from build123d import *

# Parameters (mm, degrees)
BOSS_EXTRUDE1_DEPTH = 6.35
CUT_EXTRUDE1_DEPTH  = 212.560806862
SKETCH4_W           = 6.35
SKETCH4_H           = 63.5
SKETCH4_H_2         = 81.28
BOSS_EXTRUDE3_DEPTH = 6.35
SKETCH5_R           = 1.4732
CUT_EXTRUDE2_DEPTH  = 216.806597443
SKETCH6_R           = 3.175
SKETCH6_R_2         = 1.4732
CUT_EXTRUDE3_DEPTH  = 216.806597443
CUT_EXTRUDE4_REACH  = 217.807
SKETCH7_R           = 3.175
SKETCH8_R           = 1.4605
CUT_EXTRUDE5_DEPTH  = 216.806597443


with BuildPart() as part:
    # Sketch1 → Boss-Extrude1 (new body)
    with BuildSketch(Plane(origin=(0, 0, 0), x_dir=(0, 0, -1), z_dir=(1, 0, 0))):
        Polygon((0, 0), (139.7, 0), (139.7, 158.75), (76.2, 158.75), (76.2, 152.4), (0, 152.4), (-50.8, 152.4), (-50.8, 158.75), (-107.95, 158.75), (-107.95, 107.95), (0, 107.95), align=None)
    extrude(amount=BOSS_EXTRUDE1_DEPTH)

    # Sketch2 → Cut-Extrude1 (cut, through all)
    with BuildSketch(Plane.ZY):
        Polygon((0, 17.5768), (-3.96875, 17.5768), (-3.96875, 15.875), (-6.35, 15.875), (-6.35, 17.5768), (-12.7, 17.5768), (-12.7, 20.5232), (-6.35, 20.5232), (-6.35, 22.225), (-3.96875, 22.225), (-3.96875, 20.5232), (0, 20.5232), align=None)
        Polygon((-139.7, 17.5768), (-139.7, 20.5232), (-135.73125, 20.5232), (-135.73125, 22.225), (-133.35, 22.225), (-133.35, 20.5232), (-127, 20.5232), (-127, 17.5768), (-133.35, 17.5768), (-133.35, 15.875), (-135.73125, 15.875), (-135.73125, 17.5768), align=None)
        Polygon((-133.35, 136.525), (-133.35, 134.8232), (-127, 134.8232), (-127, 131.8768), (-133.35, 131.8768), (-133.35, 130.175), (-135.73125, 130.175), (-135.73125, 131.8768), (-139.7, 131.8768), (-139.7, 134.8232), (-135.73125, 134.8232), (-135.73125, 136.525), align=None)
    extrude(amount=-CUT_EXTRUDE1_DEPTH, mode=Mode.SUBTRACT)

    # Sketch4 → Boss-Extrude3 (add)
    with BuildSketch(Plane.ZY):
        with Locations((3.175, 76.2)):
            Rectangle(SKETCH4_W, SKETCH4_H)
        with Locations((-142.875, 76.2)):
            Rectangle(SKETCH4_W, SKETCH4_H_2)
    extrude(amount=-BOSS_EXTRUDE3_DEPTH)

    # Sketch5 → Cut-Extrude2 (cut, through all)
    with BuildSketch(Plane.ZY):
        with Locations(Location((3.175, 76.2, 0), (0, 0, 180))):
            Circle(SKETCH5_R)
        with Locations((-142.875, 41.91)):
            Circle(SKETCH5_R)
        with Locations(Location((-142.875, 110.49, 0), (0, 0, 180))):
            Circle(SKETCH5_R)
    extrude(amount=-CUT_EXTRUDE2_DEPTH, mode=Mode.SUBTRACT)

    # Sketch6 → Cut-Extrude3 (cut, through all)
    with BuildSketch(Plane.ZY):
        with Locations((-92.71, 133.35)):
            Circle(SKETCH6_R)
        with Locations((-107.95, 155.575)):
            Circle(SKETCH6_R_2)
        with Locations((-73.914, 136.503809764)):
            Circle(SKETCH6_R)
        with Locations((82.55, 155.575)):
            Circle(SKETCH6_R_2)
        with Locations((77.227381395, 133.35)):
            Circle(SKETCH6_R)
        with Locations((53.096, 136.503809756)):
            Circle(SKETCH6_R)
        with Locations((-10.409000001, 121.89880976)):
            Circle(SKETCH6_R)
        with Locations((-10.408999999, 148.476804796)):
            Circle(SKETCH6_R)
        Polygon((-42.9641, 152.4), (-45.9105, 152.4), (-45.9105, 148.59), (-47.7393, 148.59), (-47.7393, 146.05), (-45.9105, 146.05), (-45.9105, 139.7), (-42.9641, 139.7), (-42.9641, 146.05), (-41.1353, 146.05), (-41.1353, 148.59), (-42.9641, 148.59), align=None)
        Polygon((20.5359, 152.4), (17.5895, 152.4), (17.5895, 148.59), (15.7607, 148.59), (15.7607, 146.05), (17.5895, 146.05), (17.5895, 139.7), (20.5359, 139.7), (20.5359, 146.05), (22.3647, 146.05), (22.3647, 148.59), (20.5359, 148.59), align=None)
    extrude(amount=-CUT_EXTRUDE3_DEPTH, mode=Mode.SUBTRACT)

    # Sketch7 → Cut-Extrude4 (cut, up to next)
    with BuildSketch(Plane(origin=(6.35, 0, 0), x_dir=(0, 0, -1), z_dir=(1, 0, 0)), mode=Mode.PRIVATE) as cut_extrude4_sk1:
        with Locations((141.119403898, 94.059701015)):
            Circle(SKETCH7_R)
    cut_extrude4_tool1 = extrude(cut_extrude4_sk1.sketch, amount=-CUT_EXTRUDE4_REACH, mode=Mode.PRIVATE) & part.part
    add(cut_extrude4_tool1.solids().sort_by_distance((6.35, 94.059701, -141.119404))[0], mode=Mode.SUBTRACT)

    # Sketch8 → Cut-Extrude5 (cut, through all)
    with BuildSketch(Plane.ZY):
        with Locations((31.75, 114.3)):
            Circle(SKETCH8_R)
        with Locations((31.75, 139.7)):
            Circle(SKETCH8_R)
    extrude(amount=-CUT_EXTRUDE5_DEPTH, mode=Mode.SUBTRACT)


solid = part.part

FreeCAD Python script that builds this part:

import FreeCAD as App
import Part
import Sketcher

V = App.Vector
Q = App.Units.Quantity

doc = App.newDocument("Part")
body = doc.addObject("PartDesign::Body", "Body")

sketch1 = body.newObject("Sketcher::SketchObject", "Sketch")
sketch1.AttachmentSupport = (doc.getObject("YZ_Plane"), [""])
sketch1.MapMode = "FlatFace"
sketch1.addGeometry([
    Part.LineSegment(V(0, 0, 0), V(0, -140, 0)),
    Part.LineSegment(V(0, -140, 0), V(159, -140, 0)),
    Part.LineSegment(V(159, -140, 0), V(159, -76, 0)),
    Part.LineSegment(V(159, -76, 0), V(152, -76, 0)),
    Part.LineSegment(V(152, -76, 0), V(152, 51, 0)),
    Part.LineSegment(V(152, 51, 0), V(159, 51, 0)),
    Part.LineSegment(V(159, 51, 0), V(159, 108, 0)),
    Part.LineSegment(V(159, 108, 0), V(108, 108, 0)),
    Part.LineSegment(V(108, 108, 0), V(108, 0, 0)),
    Part.LineSegment(V(108, 0, 0), V(0, 0, 0)),
], False)
sketch1.addConstraint([
    Sketcher.Constraint("Coincident", 0, 2, 1, 1),
    Sketcher.Constraint("Coincident", 1, 2, 2, 1),
    Sketcher.Constraint("Coincident", 2, 2, 3, 1),
    Sketcher.Constraint("Coincident", 3, 2, 4, 1),
    Sketcher.Constraint("Coincident", 4, 2, 5, 1),
    Sketcher.Constraint("Coincident", 5, 2, 6, 1),
    Sketcher.Constraint("Coincident", 6, 2, 7, 1),
    Sketcher.Constraint("Coincident", 7, 2, 8, 1),
    Sketcher.Constraint("Coincident", 8, 2, 9, 1),
    Sketcher.Constraint("Coincident", 9, 2, 0, 1),
    Sketcher.Constraint("Vertical", 0),
    Sketcher.Constraint("Horizontal", 1),
    Sketcher.Constraint("Vertical", 2),
    Sketcher.Constraint("Horizontal", 3),
    Sketcher.Constraint("Vertical", 4),
    Sketcher.Constraint("Horizontal", 5),
    Sketcher.Constraint("Vertical", 6),
    Sketcher.Constraint("Horizontal", 7),
    Sketcher.Constraint("Vertical", 8),
    Sketcher.Constraint("Horizontal", 9),
    Sketcher.Constraint("Coincident", 9, 2, -1, 1),
    Sketcher.Constraint("Vertical", 2, 2, 5, 2),
    Sketcher.Constraint("Equal", 9, 8),
    Sketcher.Constraint("DistanceX", 7, 2, 7, 1, Q("2 in")),
    Sketcher.Constraint("DistanceY", 4, 1, 4, 2, Q("5 in")),
    Sketcher.Constraint("DistanceY", 0, 2, 0, 1, Q("5.5 in")),
    Sketcher.Constraint("DistanceY", 2, 1, 2, 2, Q("2.5 in")),
    Sketcher.Constraint("DistanceX", -1, 1, 3, 2, Q("6 in")),
    Sketcher.Constraint("DistanceX", 1, 1, 1, 2, Q("6.25 in")),
])
pad1 = body.newObject("PartDesign::Pad", "Pad")
pad1.Profile = sketch1
pad1.Length = Q("0.25 in")

sketch2 = body.newObject("Sketcher::SketchObject", "Sketch001")
sketch2.AttachmentSupport = (doc.getObject("YZ_Plane"), [""])
sketch2.MapMode = "FlatFace"
sketch2.addGeometry([
    Part.LineSegment(V(17.6, -4, 0), V(17.6, 0, 0)),
    Part.LineSegment(V(17.6, 0, 0), V(20.5, 0, 0)),
    Part.LineSegment(V(20.5, 0, 0), V(20.5, -4, 0)),
    Part.LineSegment(V(20.5, -4, 0), V(22.2, -4, 0)),
    Part.LineSegment(V(22.2, -4, 0), V(22.2, -6.3, 0)),
    Part.LineSegment(V(22.2, -6.3, 0), V(20.5, -6.3, 0)),
    Part.LineSegment(V(20.5, -6.3, 0), V(20.5, -12.7, 0)),
    Part.LineSegment(V(20.5, -12.7, 0), V(17.6, -12.7, 0)),
    Part.LineSegment(V(17.6, -12.7, 0), V(17.6, -6.3, 0)),
    Part.LineSegment(V(17.6, -6.3, 0), V(15.9, -6.3, 0)),
    Part.LineSegment(V(15.9, -6.3, 0), V(15.9, -4, 0)),
    Part.LineSegment(V(15.9, -4, 0), V(17.6, -4, 0)),
    Part.LineSegment(V(20.5, -139.7, 0), V(17.6, -139.7, 0)),
    Part.LineSegment(V(17.6, -139.7, 0), V(17.6, -135.7, 0)),
    Part.LineSegment(V(17.6, -135.7, 0), V(15.9, -135.7, 0)),
    Part.LineSegment(V(15.9, -135.7, 0), V(15.9, -133.3, 0)),
    Part.LineSegment(V(15.9, -133.3, 0), V(17.6, -133.3, 0)),
    Part.LineSegment(V(17.6, -133.3, 0), V(17.6, -127, 0)),
    Part.LineSegment(V(17.6, -127, 0), V(20.5, -127, 0)),
    Part.LineSegment(V(20.5, -127, 0), V(20.5, -133.3, 0)),
    Part.LineSegment(V(20.5, -133.3, 0), V(22.2, -133.3, 0)),
    Part.LineSegment(V(22.2, -133.3, 0), V(22.2, -135.7, 0)),
    Part.LineSegment(V(22.2, -135.7, 0), V(20.5, -135.7, 0)),
    Part.LineSegment(V(20.5, -135.7, 0), V(20.5, -139.7, 0)),
    Part.LineSegment(V(134.8, -133.3, 0), V(136.5, -133.3, 0)),
    Part.LineSegment(V(136.5, -133.3, 0), V(136.5, -135.7, 0)),
    Part.LineSegment(V(136.5, -135.7, 0), V(134.8, -135.7, 0)),
    Part.LineSegment(V(134.8, -135.7, 0), V(134.8, -139.7, 0)),
    Part.LineSegment(V(134.8, -139.7, 0), V(131.9, -139.7, 0)),
    Part.LineSegment(V(131.9, -139.7, 0), V(131.9, -135.7, 0)),
    Part.LineSegment(V(131.9, -135.7, 0), V(130.2, -135.7, 0)),
    Part.LineSegment(V(130.2, -135.7, 0), V(130.2, -133.3, 0)),
    Part.LineSegment(V(130.2, -133.3, 0), V(131.9, -133.3, 0)),
    Part.LineSegment(V(131.9, -133.3, 0), V(131.9, -127, 0)),
    Part.LineSegment(V(131.9, -127, 0), V(134.8, -127, 0)),
    Part.LineSegment(V(134.8, -127, 0), V(134.8, -133.3, 0)),
], False)
sketch2.addConstraint([
    Sketcher.Constraint("Coincident", 0, 2, 1, 1),
    Sketcher.Constraint("Coincident", 1, 2, 2, 1),
    Sketcher.Constraint("Coincident", 2, 2, 3, 1),
    Sketcher.Constraint("Coincident", 3, 2, 4, 1),
    Sketcher.Constraint("Coincident", 4, 2, 5, 1),
    Sketcher.Constraint("Coincident", 5, 2, 6, 1),
    Sketcher.Constraint("Coincident", 6, 2, 7, 1),
    Sketcher.Constraint("Coincident", 7, 2, 8, 1),
    Sketcher.Constraint("Coincident", 8, 2, 9, 1),
    Sketcher.Constraint("Coincident", 9, 2, 10, 1),
    Sketcher.Constraint("Coincident", 10, 2, 11, 1),
    Sketcher.Constraint("Coincident", 11, 2, 0, 1),
    Sketcher.Constraint("Coincident", 12, 2, 13, 1),
    Sketcher.Constraint("Coincident", 13, 2, 14, 1),
    Sketcher.Constraint("Coincident", 14, 2, 15, 1),
    Sketcher.Constraint("Coincident", 15, 2, 16, 1),
    Sketcher.Constraint("Coincident", 16, 2, 17, 1),
    Sketcher.Constraint("Coincident", 17, 2, 18, 1),
    Sketcher.Constraint("Coincident", 18, 2, 19, 1),
    Sketcher.Constraint("Coincident", 19, 2, 20, 1),
    Sketcher.Constraint("Coincident", 20, 2, 21, 1),
    Sketcher.Constraint("Coincident", 21, 2, 22, 1),
    Sketcher.Constraint("Coincident", 22, 2, 23, 1),
    Sketcher.Constraint("Coincident", 23, 2, 12, 1),
    Sketcher.Constraint("Coincident", 24, 2, 25, 1),
    Sketcher.Constraint("Coincident", 25, 2, 26, 1),
    Sketcher.Constraint("Coincident", 26, 2, 27, 1),
    Sketcher.Constraint("Coincident", 27, 2, 28, 1),
    Sketcher.Constraint("Coincident", 28, 2, 29, 1),
    Sketcher.Constraint("Coincident", 29, 2, 30, 1),
    Sketcher.Constraint("Coincident", 30, 2, 31, 1),
    Sketcher.Constraint("Coincident", 31, 2, 32, 1),
    Sketcher.Constraint("Coincident", 32, 2, 33, 1),
    Sketcher.Constraint("Coincident", 33, 2, 34, 1),
    Sketcher.Constraint("Coincident", 34, 2, 35, 1),
    Sketcher.Constraint("Coincident", 35, 2, 24, 1),
    Sketcher.Constraint("Vertical", 0),
    Sketcher.Constraint("Horizontal", 1),
    Sketcher.Constraint("Vertical", 2),
    Sketcher.Constraint("Horizontal", 3),
    Sketcher.Constraint("Vertical", 4),
    Sketcher.Constraint("Horizontal", 5),
    Sketcher.Constraint("Vertical", 6),
    Sketcher.Constraint("Horizontal", 7),
    Sketcher.Constraint("Vertical", 8),
    Sketcher.Constraint("Horizontal", 9),
    Sketcher.Constraint("Vertical", 10),
    Sketcher.Constraint("Horizontal", 11),
    Sketcher.Constraint("Horizontal", 12),
    Sketcher.Constraint("Vertical", 13),
    Sketcher.Constraint("Horizontal", 14),
    Sketcher.Constraint("Vertical", 15),
    Sketcher.Constraint("Horizontal", 16),
    Sketcher.Constraint("Vertical", 17),
    Sketcher.Constraint("Horizontal", 18),
    Sketcher.Constraint("Vertical", 19),
    Sketcher.Constraint("Horizontal", 20),
    Sketcher.Constraint("Vertical", 21),
    Sketcher.Constraint("Horizontal", 22),
    Sketcher.Constraint("Vertical", 23),
    Sketcher.Constraint("Horizontal", 24),
    Sketcher.Constraint("Vertical", 25),
    Sketcher.Constraint("Horizontal", 26),
    Sketcher.Constraint("Vertical", 27),
    Sketcher.Constraint("Horizontal", 28),
    Sketcher.Constraint("Vertical", 29),
    Sketcher.Constraint("Horizontal", 30),
    Sketcher.Constraint("Vertical", 31),
    Sketcher.Constraint("Horizontal", 32),
    Sketcher.Constraint("Vertical", 33),
    Sketcher.Constraint("Horizontal", 34),
    Sketcher.Constraint("Vertical", 35),
    Sketcher.Constraint("PointOnObject", 0, 2, -1),
    Sketcher.Constraint("Horizontal", 5, 2, 8, 2),
    Sketcher.Constraint("Horizontal", 3, 2, 10, 2),
    Sketcher.Constraint("Horizontal", 16, 2, 19, 2),
    Sketcher.Constraint("Horizontal", 14, 2, 21, 2),
    Sketcher.Constraint("Horizontal", 20, 2, 24, 2),
    Sketcher.Constraint("Horizontal", 22, 2, 25, 2),
    Sketcher.Constraint("Horizontal", 23, 2, 27, 2),
    Sketcher.Constraint("Horizontal", 26, 2, 29, 2),
    Sketcher.Constraint("Horizontal", 24, 2, 31, 2),
    Sketcher.Constraint("Horizontal", 18, 2, 33, 2),
    Sketcher.Constraint("Vertical", 2, 2, 5, 2),
    Sketcher.Constraint("Vertical", 0, 2, 7, 2),
    Sketcher.Constraint("Vertical", 11, 2, 12, 2),
    Sketcher.Constraint("Vertical", 10, 2, 14, 2),
    Sketcher.Constraint("Vertical", 13, 2, 16, 2),
    Sketcher.Constraint("Vertical", 6, 2, 18, 2),
    Sketcher.Constraint("Vertical", 4, 2, 20, 2),
    Sketcher.Constraint("Vertical", 19, 2, 22, 2),
    Sketcher.Constraint("Vertical", 29, 2, 32, 2),
    Sketcher.Constraint("Vertical", 27, 2, 34, 2),
    Sketcher.Constraint("Equal", 5, 9),
    Sketcher.Constraint("Equal", 22, 24),
    Sketcher.Constraint("Equal", 18, 28),
    Sketcher.Constraint("Equal", 26, 30),
    Sketcher.Constraint("Equal", 2, 13),
    Sketcher.Constraint("Equal", 10, 15),
    Sketcher.Constraint("Equal", 8, 17),
    Sketcher.Constraint("DistanceY", 17, 2, -1, 1, Q("5 in")),
    Sketcher.Constraint("DistanceY", 6, 2, 6, 1, Q("0.25 in")),
    Sketcher.Constraint("DistanceY", 6, 2, -1, 1, Q("0.5 in")),
    Sketcher.Constraint("DistanceX", 20, 2, 24, 2, Q("4.5 in")),
    Sketcher.Constraint("DistanceX", 1, 1, 1, 2, Q("0.116 in")),
    Sketcher.Constraint("DistanceX", 3, 1, 3, 2, Q("0.067 in")),
    Sketcher.Constraint("DistanceY", 0, 1, 0, 2, Q("0.15625 in")),
    Sketcher.Constraint("DistanceX", -1, 1, 0, 2, Q("0.692 in")),
])
pocket1 = body.newObject("PartDesign::Pocket", "Pocket")
pocket1.Profile = sketch2
pocket1.Type = "ThroughAll"
pocket1.Reversed = True

sketch3 = body.newObject("Sketcher::SketchObject", "Sketch002")
sketch3.AttachmentSupport = (doc.getObject("YZ_Plane"), [""])
sketch3.MapMode = "FlatFace"
sketch3.addGeometry([
    Part.LineSegment(V(108, 0, 0), V(44, 0, 0)),
    Part.LineSegment(V(44, 0, 0), V(44, 6, 0)),
    Part.LineSegment(V(44, 6, 0), V(108, 6, 0)),
    Part.LineSegment(V(108, 6, 0), V(108, 0, 0)),
    Part.LineSegment(V(117, -146, 0), V(36, -146, 0)),
    Part.LineSegment(V(36, -146, 0), V(36, -140, 0)),
    Part.LineSegment(V(36, -140, 0), V(117, -140, 0)),
    Part.LineSegment(V(117, -140, 0), V(117, -146, 0)),
], False)
sketch3.addConstraint([
    Sketcher.Constraint("Coincident", 0, 2, 1, 1),
    Sketcher.Constraint("Coincident", 1, 2, 2, 1),
    Sketcher.Constraint("Coincident", 2, 2, 3, 1),
    Sketcher.Constraint("Coincident", 3, 2, 0, 1),
    Sketcher.Constraint("Coincident", 4, 2, 5, 1),
    Sketcher.Constraint("Coincident", 5, 2, 6, 1),
    Sketcher.Constraint("Coincident", 6, 2, 7, 1),
    Sketcher.Constraint("Coincident", 7, 2, 4, 1),
    Sketcher.Constraint("Horizontal", 0),
    Sketcher.Constraint("Vertical", 1),
    Sketcher.Constraint("Horizontal", 2),
    Sketcher.Constraint("Vertical", 3),
    Sketcher.Constraint("Horizontal", 4),
    Sketcher.Constraint("Vertical", 5),
    Sketcher.Constraint("Horizontal", 6),
    Sketcher.Constraint("Vertical", 7),
    Sketcher.Constraint("PointOnObject", 0, 2, -1),
    Sketcher.Constraint("Equal", 3, 5),
    Sketcher.Constraint("DistanceX", 0, 2, 0, 1, Q("2.5 in")),
    Sketcher.Constraint("DistanceX", 4, 2, 4, 1, Q("3.2 in")),
    Sketcher.Constraint("DistanceY", 4, 2, 1, 2, Q("6 in")),
    Sketcher.Constraint("DistanceY", 1, 1, 1, 2, Q("0.25 in")),
    Sketcher.Constraint("DistanceX", -1, 1, 4, 2, Q("1.4 in")),
    Sketcher.Constraint("DistanceX", -1, 1, 0, 2, Q("1.75 in")),
])
pad2 = body.newObject("PartDesign::Pad", "Pad001")
pad2.Profile = sketch3
pad2.Length = Q("0.25 in")

sketch4 = body.newObject("Sketcher::SketchObject", "Sketch003")
sketch4.AttachmentSupport = (doc.getObject("YZ_Plane"), [""])
sketch4.MapMode = "FlatFace"
sketch4.addGeometry([
    Part.Circle(V(76.2, 3.2, 0), V(0, 0, 1), 1.5),
    Part.Circle(V(41.9, -142.9, 0), V(0, 0, 1), 1.5),
    Part.Circle(V(110.5, -142.9, 0), V(0, 0, 1), 1.5),
], False)
sketch4.addConstraint([
    Sketcher.Constraint("Equal", 0, 1),
    Sketcher.Constraint("Equal", 1, 2),
    Sketcher.Constraint("Horizontal", 1, 3, 2, 3),
    Sketcher.Constraint("Diameter", 0, Q("0.116 in")),
    Sketcher.Constraint("DistanceX", -1, 1, 0, 3, Q("3 in")),
    Sketcher.Constraint("DistanceX", 1, 3, 2, 3, Q("2.7 in")),
    Sketcher.Constraint("DistanceX", -1, 1, 1, 3, Q("1.65 in")),
    Sketcher.Constraint("DistanceY", 1, 3, 0, 3, Q("5.75 in")),
    Sketcher.Constraint("DistanceY", -1, 1, 0, 3, Q("0.125 in")),
])
pocket2 = body.newObject("PartDesign::Pocket", "Pocket001")
pocket2.Profile = sketch4
pocket2.Type = "ThroughAll"
pocket2.Reversed = True

sketch5 = body.newObject("Sketcher::SketchObject", "Sketch004")
sketch5.AttachmentSupport = (doc.getObject("YZ_Plane"), [""])
sketch5.MapMode = "FlatFace"
sketch5.addGeometry([
    Part.Circle(V(133.3, -92.7, 0), V(0, 0, 1), 3.2),
    Part.Circle(V(155.6, -108, 0), V(0, 0, 1), 1.5),
    Part.Circle(V(136.5, -73.9, 0), V(0, 0, 1), 3.2),
    Part.Circle(V(155.6, 82.5, 0), V(0, 0, 1), 1.5),
    Part.Circle(V(133.3, 77.2, 0), V(0, 0, 1), 3.2),
    Part.Circle(V(136.5, 53.1, 0), V(0, 0, 1), 3.2),
    Part.Circle(V(121.9, -10.4, 0), V(0, 0, 1), 3.2),
    Part.Circle(V(148.5, -10.4, 0), V(0, 0, 1), 3.2),
    Part.LineSegment(V(152.4, -43, 0), V(152.4, -45.9, 0)),
    Part.LineSegment(V(152.4, -45.9, 0), V(148.6, -45.9, 0)),
    Part.LineSegment(V(148.6, -45.9, 0), V(148.6, -47.7, 0)),
    Part.LineSegment(V(148.6, -47.7, 0), V(146.1, -47.7, 0)),
    Part.LineSegment(V(146.1, -47.7, 0), V(146.1, -45.9, 0)),
    Part.LineSegment(V(146.1, -45.9, 0), V(139.7, -45.9, 0)),
    Part.LineSegment(V(139.7, -45.9, 0), V(139.7, -43, 0)),
    Part.LineSegment(V(139.7, -43, 0), V(146.1, -43, 0)),
    Part.LineSegment(V(146.1, -43, 0), V(146.1, -41.1, 0)),
    Part.LineSegment(V(146.1, -41.1, 0), V(148.6, -41.1, 0)),
    Part.LineSegment(V(148.6, -41.1, 0), V(148.6, -43, 0)),
    Part.LineSegment(V(148.6, -43, 0), V(152.4, -43, 0)),
    Part.LineSegment(V(152.4, 20.5, 0), V(152.4, 17.6, 0)),
    Part.LineSegment(V(152.4, 17.6, 0), V(148.6, 17.6, 0)),
    Part.LineSegment(V(148.6, 17.6, 0), V(148.6, 15.8, 0)),
    Part.LineSegment(V(148.6, 15.8, 0), V(146.1, 15.8, 0)),
    Part.LineSegment(V(146.1, 15.8, 0), V(146.1, 17.6, 0)),
    Part.LineSegment(V(146.1, 17.6, 0), V(139.7, 17.6, 0)),
    Part.LineSegment(V(139.7, 17.6, 0), V(139.7, 20.5, 0)),
    Part.LineSegment(V(139.7, 20.5, 0), V(146.1, 20.5, 0)),
    Part.LineSegment(V(146.1, 20.5, 0), V(146.1, 22.4, 0)),
    Part.LineSegment(V(146.1, 22.4, 0), V(148.6, 22.4, 0)),
    Part.LineSegment(V(148.6, 22.4, 0), V(148.6, 20.5, 0)),
    Part.LineSegment(V(148.6, 20.5, 0), V(152.4, 20.5, 0)),
], False)
sketch5.addConstraint([
    Sketcher.Constraint("Coincident", 8, 2, 9, 1),
    Sketcher.Constraint("Coincident", 9, 2, 10, 1),
    Sketcher.Constraint("Coincident", 10, 2, 11, 1),
    Sketcher.Constraint("Coincident", 11, 2, 12, 1),
    Sketcher.Constraint("Coincident", 12, 2, 13, 1),
    Sketcher.Constraint("Coincident", 13, 2, 14, 1),
    Sketcher.Constraint("Coincident", 14, 2, 15, 1),
    Sketcher.Constraint("Coincident", 15, 2, 16, 1),
    Sketcher.Constraint("Coincident", 16, 2, 17, 1),
    Sketcher.Constraint("Coincident", 17, 2, 18, 1),
    Sketcher.Constraint("Coincident", 18, 2, 19, 1),
    Sketcher.Constraint("Coincident", 19, 2, 8, 1),
    Sketcher.Constraint("Coincident", 20, 2, 21, 1),
    Sketcher.Constraint("Coincident", 21, 2, 22, 1),
    Sketcher.Constraint("Coincident", 22, 2, 23, 1),
    Sketcher.Constraint("Coincident", 23, 2, 24, 1),
    Sketcher.Constraint("Coincident", 24, 2, 25, 1),
    Sketcher.Constraint("Coincident", 25, 2, 26, 1),
    Sketcher.Constraint("Coincident", 26, 2, 27, 1),
    Sketcher.Constraint("Coincident", 27, 2, 28, 1),
    Sketcher.Constraint("Coincident", 28, 2, 29, 1),
    Sketcher.Constraint("Coincident", 29, 2, 30, 1),
    Sketcher.Constraint("Coincident", 30, 2, 31, 1),
    Sketcher.Constraint("Coincident", 31, 2, 20, 1),
    Sketcher.Constraint("Vertical", 8),
    Sketcher.Constraint("Horizontal", 9),
    Sketcher.Constraint("Vertical", 10),
    Sketcher.Constraint("Horizontal", 11),
    Sketcher.Constraint("Vertical", 12),
    Sketcher.Constraint("Horizontal", 13),
    Sketcher.Constraint("Vertical", 14),
    Sketcher.Constraint("Horizontal", 15),
    Sketcher.Constraint("Vertical", 16),
    Sketcher.Constraint("Horizontal", 17),
    Sketcher.Constraint("Vertical", 18),
    Sketcher.Constraint("Horizontal", 19),
    Sketcher.Constraint("Vertical", 20),
    Sketcher.Constraint("Horizontal", 21),
    Sketcher.Constraint("Vertical", 22),
    Sketcher.Constraint("Horizontal", 23),
    Sketcher.Constraint("Vertical", 24),
    Sketcher.Constraint("Horizontal", 25),
    Sketcher.Constraint("Vertical", 26),
    Sketcher.Constraint("Horizontal", 27),
    Sketcher.Constraint("Vertical", 28),
    Sketcher.Constraint("Horizontal", 29),
    Sketcher.Constraint("Vertical", 30),
    Sketcher.Constraint("Horizontal", 31),
    Sketcher.Constraint("Equal", 0, 2),
    Sketcher.Constraint("Equal", 1, 3),
    Sketcher.Constraint("Equal", 2, 4),
    Sketcher.Constraint("Equal", 4, 5),
    Sketcher.Constraint("Equal", 5, 6),
    Sketcher.Constraint("Equal", 6, 7),
    Sketcher.Constraint("Horizontal", 6, 3, 7, 3),
    Sketcher.Constraint("Horizontal", 9, 2, 12, 2),
    Sketcher.Constraint("Horizontal", 15, 2, 18, 2),
    Sketcher.Constraint("Horizontal", 21, 2, 24, 2),
    Sketcher.Constraint("Horizontal", 27, 2, 30, 2),
    Sketcher.Constraint("Vertical", 1, 3, 3, 3),
    Sketcher.Constraint("Vertical", 0, 3, 4, 3),
    Sketcher.Constraint("Vertical", 2, 3, 5, 3),
    Sketcher.Constraint("Vertical", 12, 2, 15, 2),
    Sketcher.Constraint("Vertical", 10, 2, 17, 2),
    Sketcher.Constraint("Vertical", 19, 2, 20, 2),
    Sketcher.Constraint("Vertical", 18, 2, 21, 2),
    Sketcher.Constraint("Vertical", 16, 2, 23, 2),
    Sketcher.Constraint("Vertical", 14, 2, 25, 2),
    Sketcher.Constraint("Vertical", 24, 2, 27, 2),
    Sketcher.Constraint("Vertical", 22, 2, 29, 2),
    Sketcher.Constraint("Equal", 12, 16),
    Sketcher.Constraint("Equal", 14, 20),
    Sketcher.Constraint("Equal", 18, 22),
    Sketcher.Constraint("Equal", 24, 28),
    Sketcher.Constraint("Diameter", 0, Q("0.25 in")),
    Sketcher.Constraint("Diameter", 1, Q("0.116 in")),
    Sketcher.Constraint("DistanceX", 11, 2, 11, 1, Q("0.1 in")),
    Sketcher.Constraint("DistanceX", -1, 1, 8, 2, Q("6 in")),
    Sketcher.Constraint("DistanceX", 9, 2, 9, 1, Q("0.15 in")),
    Sketcher.Constraint("DistanceX", 13, 2, 13, 1, Q("0.25 in")),
    Sketcher.Constraint("DistanceY", 1, 3, 0, 3, Q("0.6 in")),
    Sketcher.Constraint("DistanceY", 0, 3, 3, 3, Q("6.9 in")),
    Sketcher.Constraint("DistanceX", 0, 3, 9, 2, Q("0.6 in")),
    Sketcher.Constraint("DistanceY", 8, 2, 8, 1, Q("0.116 in")),
    Sketcher.Constraint("DistanceY", 10, 2, 10, 1, Q("0.072 in")),
    Sketcher.Constraint("DistanceY", 0, 3, -1, 1, Q("3.65 in")),
    Sketcher.Constraint("DistanceY", 2, 3, -1, 1, Q("2.91 in")),
    Sketcher.Constraint("DistanceX", -1, 1, 1, 3, Q("6.125 in")),
    Sketcher.Constraint("DistanceX", 6, 3, 2, 3, Q("0.575 in")),
    Sketcher.Constraint("DistanceY", 17, 2, 20, 2, Q("2.312 in")),
    Sketcher.Constraint("DistanceY", 8, 2, -1, 1, Q("1.8075 in")),
    Sketcher.Constraint("DistanceY", -1, 1, 5, 3, 53.096),
    Sketcher.Constraint("DistanceY", 6, 3, -1, 1, 10.409),
    Sketcher.Constraint("DistanceX", -1, 1, 2, 3, 136.50381),
    Sketcher.Constraint("DistanceY", -1, 1, 4, 3, 77.227381),
    Sketcher.Constraint("DistanceX", -1, 1, 7, 3, 148.476805),
])
pocket3 = body.newObject("PartDesign::Pocket", "Pocket002")
pocket3.Profile = sketch5
pocket3.Type = "ThroughAll"
pocket3.Reversed = True

sketch6 = body.newObject("Sketcher::SketchObject", "Sketch005")
sketch6.AttachmentSupport = (doc.getObject("YZ_Plane"), [""])
sketch6.MapMode = "FlatFace"
sketch6.AttachmentOffset = App.Placement(V(0, 0, 0.25 * 25.4), App.Rotation())
sketch6.addGeometry(Part.Circle(V(94.1, -141.1, 0), V(0, 0, 1), 3.2), False)
sketch6.addConstraint([
    Sketcher.Constraint("Diameter", 0, Q("0.25 in")),
    Sketcher.Constraint("DistanceX", -1, 1, 0, 3, 94.059701),
    Sketcher.Constraint("DistanceY", 0, 3, -1, 1, 141.119404),
])
pocket4 = body.newObject("PartDesign::Pocket", "Pocket003")
pocket4.Profile = sketch6
pocket4.Type = "UpToFirst"

sketch7 = body.newObject("Sketcher::SketchObject", "Sketch006")
sketch7.AttachmentSupport = (doc.getObject("YZ_Plane"), [""])
sketch7.MapMode = "FlatFace"
sketch7.addGeometry([
    Part.Circle(V(114.3, 31.8, 0), V(0, 0, 1), 1.5),
    Part.Circle(V(139.7, 31.8, 0), V(0, 0, 1), 1.5),
], False)
sketch7.addConstraint([
    Sketcher.Constraint("Equal", 0, 1),
    Sketcher.Constraint("Horizontal", 0, 3, 1, 3),
    Sketcher.Constraint("Diameter", 0, Q("0.115 in")),
    Sketcher.Constraint("DistanceX", 0, 3, 1, 3, Q("1 in")),
    Sketcher.Constraint("DistanceX", -1, 1, 0, 3, Q("4.5 in")),
    Sketcher.Constraint("DistanceY", -1, 1, 0, 3, Q("1.25 in")),
])
pocket5 = body.newObject("PartDesign::Pocket", "Pocket004")
pocket5.Profile = sketch7
pocket5.Type = "ThroughAll"
pocket5.Reversed = True

doc.recompute()
